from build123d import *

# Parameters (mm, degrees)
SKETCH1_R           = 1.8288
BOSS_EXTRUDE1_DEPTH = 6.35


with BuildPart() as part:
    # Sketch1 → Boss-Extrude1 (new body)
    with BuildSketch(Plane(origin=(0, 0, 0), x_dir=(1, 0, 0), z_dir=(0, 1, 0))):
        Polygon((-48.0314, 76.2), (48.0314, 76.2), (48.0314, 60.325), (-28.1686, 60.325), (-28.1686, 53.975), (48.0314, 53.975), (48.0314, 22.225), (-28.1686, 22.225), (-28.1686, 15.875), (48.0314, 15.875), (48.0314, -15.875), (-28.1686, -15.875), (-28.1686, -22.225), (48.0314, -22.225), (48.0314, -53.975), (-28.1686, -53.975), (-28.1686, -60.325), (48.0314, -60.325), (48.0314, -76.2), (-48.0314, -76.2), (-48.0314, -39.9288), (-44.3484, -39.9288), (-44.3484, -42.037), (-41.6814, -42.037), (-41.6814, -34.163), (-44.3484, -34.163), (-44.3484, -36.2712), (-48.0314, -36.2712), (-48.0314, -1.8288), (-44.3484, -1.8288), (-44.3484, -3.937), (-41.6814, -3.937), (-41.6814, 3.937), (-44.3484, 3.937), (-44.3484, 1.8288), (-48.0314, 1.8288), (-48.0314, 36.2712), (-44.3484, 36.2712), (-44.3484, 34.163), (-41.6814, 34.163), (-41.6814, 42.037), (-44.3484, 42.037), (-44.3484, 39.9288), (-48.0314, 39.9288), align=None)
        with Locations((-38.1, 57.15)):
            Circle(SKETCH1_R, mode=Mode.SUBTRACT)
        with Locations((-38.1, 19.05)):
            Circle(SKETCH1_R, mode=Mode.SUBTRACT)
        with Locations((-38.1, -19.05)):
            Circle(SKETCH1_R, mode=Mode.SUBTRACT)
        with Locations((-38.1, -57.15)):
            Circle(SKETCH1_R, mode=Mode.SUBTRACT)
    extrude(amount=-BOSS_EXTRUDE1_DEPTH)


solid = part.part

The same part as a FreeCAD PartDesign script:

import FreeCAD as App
import Part
import Sketcher
Q = App.Units.Quantity


def add_polygon(sketch, points):
    """Adds a closed chain of lines whose ends are joined by coincident constraints."""
    first, n = sketch.GeometryCount, len(points)
    for a, b in zip(points, points[1:] + points[:1]):
        sketch.addGeometry(Part.LineSegment(App.Vector(*a, 0), App.Vector(*b, 0)), False)
    for i in range(n):
        sketch.addConstraint(Sketcher.Constraint("Coincident", first + i, 2, first + (i + 1) % n, 1))

doc = App.newDocument("Part")
body = doc.addObject("PartDesign::Body", "Body")

# Sketch on XZ plane
sketch1 = doc.addObject("Sketcher::SketchObject", "Sketch")
body.addObject(sketch1)
sketch1.AttachmentSupport = (doc.XZ_Plane, [""])
sketch1.MapMode = "FlatFace"
add_polygon(sketch1, [(48, -76.2), (-48, -76.2), (-48, -39.9), (-44.3, -39.9), (-44.3, -42), (-41.7, -42), (-41.7, -34.2), (-44.3, -34.2), (-44.3, -36.3), (-48, -36.3), (-48, -1.8), (-44.3, -1.8), (-44.3, -3.9), (-41.7, -3.9), (-41.7, 3.9), (-44.3, 3.9), (-44.3, 1.8), (-48, 1.8), (-48, 36.3), (-44.3, 36.3), (-44.3, 34.2), (-41.7, 34.2), (-41.7, 42), (-44.3, 42), (-44.3, 39.9), (-48, 39.9), (-48, 76.2), (48, 76.2), (48, 60.3), (-28.2, 60.3), (-28.2, 54), (48, 54), (48, 22.2), (-28.2, 22.2), (-28.2, 15.9), (48, 15.9), (48, -15.9), (-28.2, -15.9), (-28.2, -22.2), (48, -22.2), (48, -54), (-28.2, -54), (-28.2, -60.3), (48, -60.3)])  # lines 0-43
sketch1.addGeometry(Part.Circle(App.Vector(-38.1, 57.1, 0), App.Vector(0, 0, 1), 1.8), False)  # 44
sketch1.addGeometry(Part.Circle(App.Vector(-38.1, 19.1, 0), App.Vector(0, 0, 1), 1.8), False)  # 45
sketch1.addGeometry(Part.Circle(App.Vector(-38.1, -19.1, 0), App.Vector(0, 0, 1), 1.8), False)  # 46
sketch1.addGeometry(Part.Circle(App.Vector(-38.1, -57.1, 0), App.Vector(0, 0, 1), 1.8), False)  # 47
sketch1.addConstraint([
    Sketcher.Constraint("Horizontal", 0),
    Sketcher.Constraint("Vertical", 1),
    Sketcher.Constraint("Horizontal", 2),
    Sketcher.Constraint("Vertical", 3),
    Sketcher.Constraint("Horizontal", 4),
    Sketcher.Constraint("Vertical", 5),
    Sketcher.Constraint("Horizontal", 6),
    Sketcher.Constraint("Vertical", 7),
    Sketcher.Constraint("Horizontal", 8),
    Sketcher.Constraint("Vertical", 9),
    Sketcher.Constraint("Horizontal", 10),
    Sketcher.Constraint("Vertical", 11),
    Sketcher.Constraint("Horizontal", 12),
    Sketcher.Constraint("Vertical", 13),
    Sketcher.Constraint("Horizontal", 14),
    Sketcher.Constraint("Vertical", 15),
    Sketcher.Constraint("Horizontal", 16),
    Sketcher.Constraint("Vertical", 17),
    Sketcher.Constraint("Horizontal", 18),
    Sketcher.Constraint("Vertical", 19),
    Sketcher.Constraint("Horizontal", 20),
    Sketcher.Constraint("Vertical", 21),
    Sketcher.Constraint("Horizontal", 22),
    Sketcher.Constraint("Vertical", 23),
    Sketcher.Constraint("Horizontal", 24),
    Sketcher.Constraint("Vertical", 25),
    Sketcher.Constraint("Horizontal", 26),
    Sketcher.Constraint("Vertical", 27),
    Sketcher.Constraint("Horizontal", 28),
    Sketcher.Constraint("Vertical", 29),
    Sketcher.Constraint("Horizontal", 30),
    Sketcher.Constraint("Vertical", 31),
    Sketcher.Constraint("Horizontal", 32),
    Sketcher.Constraint("Vertical", 33),
    Sketcher.Constraint("Horizontal", 34),
    Sketcher.Constraint("Vertical", 35),
    Sketcher.Constraint("Horizontal", 36),
    Sketcher.Constraint("Vertical", 37),
    Sketcher.Constraint("Horizontal", 38),
    Sketcher.Constraint("Vertical", 39),
    Sketcher.Constraint("Horizontal", 40),
    Sketcher.Constraint("Vertical", 41),
    Sketcher.Constraint("Horizontal", 42),
    Sketcher.Constraint("Vertical", 43),
    Sketcher.Constraint("Equal", 44, 45),
    Sketcher.Constraint("Equal", 45, 46),
    Sketcher.Constraint("Equal", 46, 47),
    Sketcher.Constraint("Symmetric", 0, 2, 26, 2, -1, 1),
    Sketcher.Constraint("Symmetric", 45, 3, 46, 3, -1),
    Sketcher.Constraint("Symmetric", 44, 3, 47, 3, -1),
    Sketcher.Constraint("Symmetric", 11, 2, 14, 2, -1),
    Sketcher.Constraint("Symmetric", 9, 2, 16, 2, -1),
    Sketcher.Constraint("Symmetric", 7, 2, 18, 2, -1),
    Sketcher.Constraint("Symmetric", 5, 2, 20, 2, -1),
    Sketcher.Constraint("Symmetric", 3, 2, 22, 2, -1),
    Sketcher.Constraint("Symmetric", 1, 2, 24, 2, -1),
    Sketcher.Constraint("Symmetric", 33, 2, 36, 2, -1),
    Sketcher.Constraint("Symmetric", 31, 2, 38, 2, -1),
    Sketcher.Constraint("Symmetric", 29, 2, 40, 2, -1),
    Sketcher.Constraint("Symmetric", 27, 2, 42, 2, -1),
    Sketcher.Constraint("Vertical", 44, 3, 45, 3),
    Sketcher.Constraint("Vertical", 3, 2, 6, 2),
    Sketcher.Constraint("Vertical", 1, 2, 8, 2),
    Sketcher.Constraint("Vertical", 7, 2, 10, 2),
    Sketcher.Constraint("Vertical", 5, 2, 12, 2),
    Sketcher.Constraint("Vertical", 27, 2, 30, 2),
    Sketcher.Constraint("Vertical", 29, 2, 32, 2),
    Sketcher.Constraint("Vertical", 31, 2, 34, 2),
    Sketcher.Constraint("Equal", 3, 7),
    Sketcher.Constraint("Equal", 7, 11),
    Sketcher.Constraint("Equal", 5, 13),
    Sketcher.Constraint("Equal", 29, 33),
    Sketcher.Constraint("Equal", 31, 35),
    Sketcher.Constraint("DistanceX", 28, 2, 28, 1, Q("3 in")),
    Sketcher.Constraint("Diameter", 44, Q("0.144 in")),
    Sketcher.Constraint("DistanceY", 0, 2, -1, 1, Q("3 in")),
    Sketcher.Constraint("DistanceY", 46, 3, 44, 3, Q("3 in")),
    Sketcher.Constraint("DistanceY", 35, 2, 27, 2, Q("3 in")),
    Sketcher.Constraint("DistanceY", 5, 1, 5, 2, Q("0.31 in")),
    Sketcher.Constraint("DistanceY", 29, 2, 29, 1, Q("0.25 in")),
    Sketcher.Constraint("DistanceX", 44, 3, -1, 1, Q("1.5 in")),
    Sketcher.Constraint("DistanceY", 45, 3, 44, 3, Q("1.5 in")),
    Sketcher.Constraint("DistanceX", 0, 2, 0, 1, Q("3.782 in")),
    Sketcher.Constraint("DistanceX", 2, 1, 2, 2, Q("0.145 in")),
    Sketcher.Constraint("DistanceX", 4, 1, 4, 2, Q("0.105 in")),
    Sketcher.Constraint("DistanceY", 1, 1, 1, 2, Q("1.428 in")),
    Sketcher.Constraint("DistanceY", 3, 2, 3, 1, Q("0.083 in")),
])
pad1 = doc.addObject("PartDesign::Pad", "Pad")
body.addObject(pad1)
pad1.Profile = sketch1
pad1.Length = Q("0.25 in")

doc.recompute()
